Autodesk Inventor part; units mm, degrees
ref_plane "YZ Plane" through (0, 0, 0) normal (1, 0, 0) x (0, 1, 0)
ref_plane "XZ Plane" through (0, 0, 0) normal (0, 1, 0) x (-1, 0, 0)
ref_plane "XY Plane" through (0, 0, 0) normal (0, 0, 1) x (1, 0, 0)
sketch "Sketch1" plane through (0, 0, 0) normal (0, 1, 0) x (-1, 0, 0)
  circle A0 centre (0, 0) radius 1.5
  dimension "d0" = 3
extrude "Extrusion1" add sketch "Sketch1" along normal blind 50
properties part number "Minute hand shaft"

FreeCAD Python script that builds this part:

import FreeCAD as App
import Part
import Sketcher
from FreeCAD import Vector
Q = App.Units.Quantity

doc = App.newDocument("Part")
body = doc.addObject("PartDesign::Body", "Body")

# Sketch on XZ plane
sketch1 = doc.addObject("Sketcher::SketchObject", "Sketch")
body.addObject(sketch1)
sketch1.AttachmentSupport = (doc.XZ_Plane, [""])
sketch1.MapMode = "FlatFace"
sketch1.addGeometry(Part.Circle(Vector(0, 0, 0), Vector(0, 0, 1), 1.5), False)
sketch1.addConstraint(Sketcher.Constraint("Coincident", 0, 3, -1, 1))
sketch1.addConstraint(Sketcher.Constraint("Diameter", 0, Q("3 mm")))
pad1 = doc.addObject("PartDesign::Pad", "Pad")
body.addObject(pad1)
pad1.Profile = sketch1
pad1.Length = 50
pad1.Reversed = True

doc.recompute()
